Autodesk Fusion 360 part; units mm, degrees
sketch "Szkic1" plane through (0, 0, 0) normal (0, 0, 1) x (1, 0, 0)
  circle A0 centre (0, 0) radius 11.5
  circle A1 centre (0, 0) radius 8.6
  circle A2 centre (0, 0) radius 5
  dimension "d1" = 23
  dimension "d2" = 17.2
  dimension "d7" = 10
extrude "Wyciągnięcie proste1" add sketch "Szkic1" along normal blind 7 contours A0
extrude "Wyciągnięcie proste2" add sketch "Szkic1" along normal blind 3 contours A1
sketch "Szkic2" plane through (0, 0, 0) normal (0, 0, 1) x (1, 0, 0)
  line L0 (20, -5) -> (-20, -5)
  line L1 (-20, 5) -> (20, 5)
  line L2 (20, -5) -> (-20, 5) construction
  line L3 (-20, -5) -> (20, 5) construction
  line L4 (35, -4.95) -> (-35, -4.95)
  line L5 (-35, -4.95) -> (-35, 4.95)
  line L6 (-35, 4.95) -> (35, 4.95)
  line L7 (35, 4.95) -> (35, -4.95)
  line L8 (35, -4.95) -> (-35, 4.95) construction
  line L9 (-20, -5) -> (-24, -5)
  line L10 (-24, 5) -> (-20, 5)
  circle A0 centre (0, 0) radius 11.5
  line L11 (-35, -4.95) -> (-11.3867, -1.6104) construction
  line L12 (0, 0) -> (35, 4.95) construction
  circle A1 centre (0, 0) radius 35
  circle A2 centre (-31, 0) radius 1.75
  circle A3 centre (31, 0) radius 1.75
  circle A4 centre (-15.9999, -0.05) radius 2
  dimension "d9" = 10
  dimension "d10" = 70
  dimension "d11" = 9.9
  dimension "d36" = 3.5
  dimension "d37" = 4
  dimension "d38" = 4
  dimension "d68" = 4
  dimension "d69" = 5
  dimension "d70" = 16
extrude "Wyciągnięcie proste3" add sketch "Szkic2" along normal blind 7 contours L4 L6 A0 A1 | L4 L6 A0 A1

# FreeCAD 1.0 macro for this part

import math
import FreeCAD as App
import Part
import Sketcher
from FreeCAD import Vector

doc = App.newDocument("Part")
body = doc.addObject("PartDesign::Body", "Body")

# Sketch on XY plane
sketch1 = body.newObject("Sketcher::SketchObject", "Sketch")
sketch1.AttachmentSupport = (doc.getObject("XY_Plane"), [""])
sketch1.MapMode = "FlatFace"
sketch1.addGeometry(Part.Circle(Vector(0, 0, 0), Vector(0, 0, 1), 12), False)
sketch1.addGeometry(Part.Circle(Vector(0, 0, 0), Vector(0, 0, 1), 9), False)
sketch1.addConstraint(Sketcher.Constraint("Coincident", 0, 3, -1, 1))
sketch1.addConstraint(Sketcher.Constraint("Coincident", 1, 3, -1, 1))
sketch1.addConstraint(Sketcher.Constraint("Diameter", 0, 23.0))
sketch1.addConstraint(Sketcher.Constraint("Diameter", 1, 17.2))
pad1 = body.newObject("PartDesign::Pad", "Pad")
pad1.Profile = sketch1
pad1.Length = 7

# Sketch on XY plane
sketch2 = body.newObject("Sketcher::SketchObject", "Sketch001")
sketch2.AttachmentSupport = (doc.getObject("XY_Plane"), [""])
sketch2.MapMode = "FlatFace"
sketch2.addGeometry(Part.Circle(Vector(0, 0, 0), Vector(0, 0, 1), 9), False)
sketch2.addGeometry(Part.Circle(Vector(0, 0, 0), Vector(0, 0, 1), 5), False)
sketch2.addConstraint(Sketcher.Constraint("Coincident", 0, 3, -1, 1))
sketch2.addConstraint(Sketcher.Constraint("Coincident", 1, 3, -1, 1))
sketch2.addConstraint(Sketcher.Constraint("Diameter", 1, 10.0))
sketch2.addConstraint(Sketcher.Constraint("Diameter", 0, 17.2))
pad2 = body.newObject("PartDesign::Pad", "Pad001")
pad2.Profile = sketch2
pad2.Length = 3

# Sketch on XY plane
sketch3 = body.newObject("Sketcher::SketchObject", "Sketch002")
sketch3.AttachmentSupport = (doc.getObject("XY_Plane"), [""])
sketch3.MapMode = "FlatFace"
sketch3.addGeometry(Part.ArcOfCircle(Part.Circle(Vector(0, 0, 0), Vector(0, 0, 1), 11.5), math.radians(-25), math.radians(25)), False)
sketch3.addGeometry(Part.LineSegment(Vector(10.4, -5, 0), Vector(34.6, -5, 0)), False)
sketch3.addGeometry(Part.ArcOfCircle(Part.Circle(Vector(0, 0, 0), Vector(0, 0, 1), 35), math.radians(-8.13), math.radians(8.13)), False)
sketch3.addGeometry(Part.LineSegment(Vector(34.6, 5, 0), Vector(10.4, 5, 0)), False)
sketch3.addGeometry(Part.Circle(Vector(31, 0, 0), Vector(0, 0, 1), 1.8), False)
sketch3.addGeometry(Part.LineSegment(Vector(-34.6, -5, 0), Vector(-10.4, -5, 0)), False)
sketch3.addGeometry(Part.ArcOfCircle(Part.Circle(Vector(0, 0, 0), Vector(0, 0, 1), 11.5), math.radians(155), math.radians(205)), False)
sketch3.addGeometry(Part.LineSegment(Vector(-10.4, 5, 0), Vector(-34.6, 5, 0)), False)
sketch3.addGeometry(Part.ArcOfCircle(Part.Circle(Vector(0, 0, 0), Vector(0, 0, 1), 35), math.radians(171.87), math.radians(188.13)), False)
sketch3.addGeometry(Part.Circle(Vector(-16, -0.1, 0), Vector(0, 0, 1), 2), False)
sketch3.addGeometry(Part.Circle(Vector(-31, 0, 0), Vector(0, 0, 1), 1.8), False)
sketch3.addConstraint(Sketcher.Constraint("Coincident", 0, 1, 1, 1))
sketch3.addConstraint(Sketcher.Constraint("Coincident", 1, 2, 2, 1))
sketch3.addConstraint(Sketcher.Constraint("Coincident", 2, 2, 3, 1))
sketch3.addConstraint(Sketcher.Constraint("Coincident", 3, 2, 0, 2))
sketch3.addConstraint(Sketcher.Constraint("Coincident", 5, 2, 6, 2))
sketch3.addConstraint(Sketcher.Constraint("Coincident", 6, 1, 7, 1))
sketch3.addConstraint(Sketcher.Constraint("Coincident", 7, 2, 8, 1))
sketch3.addConstraint(Sketcher.Constraint("Coincident", 8, 2, 5, 1))
sketch3.addConstraint(Sketcher.Constraint("Horizontal", 1))
sketch3.addConstraint(Sketcher.Constraint("Horizontal", 3))
sketch3.addConstraint(Sketcher.Constraint("Horizontal", 5))
sketch3.addConstraint(Sketcher.Constraint("Horizontal", 7))
sketch3.addConstraint(Sketcher.Constraint("Coincident", 0, 3, -1, 1))
sketch3.addConstraint(Sketcher.Constraint("Coincident", 2, 3, -1, 1))
sketch3.addConstraint(Sketcher.Constraint("Coincident", 6, 3, -1, 1))
sketch3.addConstraint(Sketcher.Constraint("Coincident", 8, 3, -1, 1))
sketch3.addConstraint(Sketcher.Constraint("Equal", 0, 6))
sketch3.addConstraint(Sketcher.Constraint("Equal", 2, 8))
sketch3.addConstraint(Sketcher.Constraint("Equal", 4, 10))
sketch3.addConstraint(Sketcher.Constraint("Symmetric", 4, 3, 10, 3, -1, 1))
sketch3.addConstraint(Sketcher.Constraint("PointOnObject", 4, 3, -1))
sketch3.addConstraint(Sketcher.Constraint("Horizontal", 1, 2, 5, 2))
sketch3.addConstraint(Sketcher.Constraint("Horizontal", 3, 2, 6, 1))
sketch3.addConstraint(Sketcher.Constraint("Vertical", 1, 2, 2, 2))
sketch3.addConstraint(Sketcher.Constraint("Diameter", 9, 4.0))
sketch3.addConstraint(Sketcher.Constraint("Radius", 2, 35.0))
sketch3.addConstraint(Sketcher.Constraint("Diameter", 4, 3.5))
sketch3.addConstraint(Sketcher.Constraint("DistanceX", 9, 3, -1, 1, 16.0))
sketch3.addConstraint(Sketcher.Constraint("DistanceY", 9, 3, 6, 1, 5.0))
sketch3.addConstraint(Sketcher.Constraint("Radius", 0, 11.5))
sketch3.addConstraint(Sketcher.Constraint("DistanceY", 1, 2, 2, 2, 9.9))
sketch3.addConstraint(Sketcher.Constraint("DistanceX", -1, 1, 4, 3, 31.0))
pad3 = body.newObject("PartDesign::Pad", "Pad002")
pad3.Profile = sketch3
pad3.Length = 7

doc.recompute()
